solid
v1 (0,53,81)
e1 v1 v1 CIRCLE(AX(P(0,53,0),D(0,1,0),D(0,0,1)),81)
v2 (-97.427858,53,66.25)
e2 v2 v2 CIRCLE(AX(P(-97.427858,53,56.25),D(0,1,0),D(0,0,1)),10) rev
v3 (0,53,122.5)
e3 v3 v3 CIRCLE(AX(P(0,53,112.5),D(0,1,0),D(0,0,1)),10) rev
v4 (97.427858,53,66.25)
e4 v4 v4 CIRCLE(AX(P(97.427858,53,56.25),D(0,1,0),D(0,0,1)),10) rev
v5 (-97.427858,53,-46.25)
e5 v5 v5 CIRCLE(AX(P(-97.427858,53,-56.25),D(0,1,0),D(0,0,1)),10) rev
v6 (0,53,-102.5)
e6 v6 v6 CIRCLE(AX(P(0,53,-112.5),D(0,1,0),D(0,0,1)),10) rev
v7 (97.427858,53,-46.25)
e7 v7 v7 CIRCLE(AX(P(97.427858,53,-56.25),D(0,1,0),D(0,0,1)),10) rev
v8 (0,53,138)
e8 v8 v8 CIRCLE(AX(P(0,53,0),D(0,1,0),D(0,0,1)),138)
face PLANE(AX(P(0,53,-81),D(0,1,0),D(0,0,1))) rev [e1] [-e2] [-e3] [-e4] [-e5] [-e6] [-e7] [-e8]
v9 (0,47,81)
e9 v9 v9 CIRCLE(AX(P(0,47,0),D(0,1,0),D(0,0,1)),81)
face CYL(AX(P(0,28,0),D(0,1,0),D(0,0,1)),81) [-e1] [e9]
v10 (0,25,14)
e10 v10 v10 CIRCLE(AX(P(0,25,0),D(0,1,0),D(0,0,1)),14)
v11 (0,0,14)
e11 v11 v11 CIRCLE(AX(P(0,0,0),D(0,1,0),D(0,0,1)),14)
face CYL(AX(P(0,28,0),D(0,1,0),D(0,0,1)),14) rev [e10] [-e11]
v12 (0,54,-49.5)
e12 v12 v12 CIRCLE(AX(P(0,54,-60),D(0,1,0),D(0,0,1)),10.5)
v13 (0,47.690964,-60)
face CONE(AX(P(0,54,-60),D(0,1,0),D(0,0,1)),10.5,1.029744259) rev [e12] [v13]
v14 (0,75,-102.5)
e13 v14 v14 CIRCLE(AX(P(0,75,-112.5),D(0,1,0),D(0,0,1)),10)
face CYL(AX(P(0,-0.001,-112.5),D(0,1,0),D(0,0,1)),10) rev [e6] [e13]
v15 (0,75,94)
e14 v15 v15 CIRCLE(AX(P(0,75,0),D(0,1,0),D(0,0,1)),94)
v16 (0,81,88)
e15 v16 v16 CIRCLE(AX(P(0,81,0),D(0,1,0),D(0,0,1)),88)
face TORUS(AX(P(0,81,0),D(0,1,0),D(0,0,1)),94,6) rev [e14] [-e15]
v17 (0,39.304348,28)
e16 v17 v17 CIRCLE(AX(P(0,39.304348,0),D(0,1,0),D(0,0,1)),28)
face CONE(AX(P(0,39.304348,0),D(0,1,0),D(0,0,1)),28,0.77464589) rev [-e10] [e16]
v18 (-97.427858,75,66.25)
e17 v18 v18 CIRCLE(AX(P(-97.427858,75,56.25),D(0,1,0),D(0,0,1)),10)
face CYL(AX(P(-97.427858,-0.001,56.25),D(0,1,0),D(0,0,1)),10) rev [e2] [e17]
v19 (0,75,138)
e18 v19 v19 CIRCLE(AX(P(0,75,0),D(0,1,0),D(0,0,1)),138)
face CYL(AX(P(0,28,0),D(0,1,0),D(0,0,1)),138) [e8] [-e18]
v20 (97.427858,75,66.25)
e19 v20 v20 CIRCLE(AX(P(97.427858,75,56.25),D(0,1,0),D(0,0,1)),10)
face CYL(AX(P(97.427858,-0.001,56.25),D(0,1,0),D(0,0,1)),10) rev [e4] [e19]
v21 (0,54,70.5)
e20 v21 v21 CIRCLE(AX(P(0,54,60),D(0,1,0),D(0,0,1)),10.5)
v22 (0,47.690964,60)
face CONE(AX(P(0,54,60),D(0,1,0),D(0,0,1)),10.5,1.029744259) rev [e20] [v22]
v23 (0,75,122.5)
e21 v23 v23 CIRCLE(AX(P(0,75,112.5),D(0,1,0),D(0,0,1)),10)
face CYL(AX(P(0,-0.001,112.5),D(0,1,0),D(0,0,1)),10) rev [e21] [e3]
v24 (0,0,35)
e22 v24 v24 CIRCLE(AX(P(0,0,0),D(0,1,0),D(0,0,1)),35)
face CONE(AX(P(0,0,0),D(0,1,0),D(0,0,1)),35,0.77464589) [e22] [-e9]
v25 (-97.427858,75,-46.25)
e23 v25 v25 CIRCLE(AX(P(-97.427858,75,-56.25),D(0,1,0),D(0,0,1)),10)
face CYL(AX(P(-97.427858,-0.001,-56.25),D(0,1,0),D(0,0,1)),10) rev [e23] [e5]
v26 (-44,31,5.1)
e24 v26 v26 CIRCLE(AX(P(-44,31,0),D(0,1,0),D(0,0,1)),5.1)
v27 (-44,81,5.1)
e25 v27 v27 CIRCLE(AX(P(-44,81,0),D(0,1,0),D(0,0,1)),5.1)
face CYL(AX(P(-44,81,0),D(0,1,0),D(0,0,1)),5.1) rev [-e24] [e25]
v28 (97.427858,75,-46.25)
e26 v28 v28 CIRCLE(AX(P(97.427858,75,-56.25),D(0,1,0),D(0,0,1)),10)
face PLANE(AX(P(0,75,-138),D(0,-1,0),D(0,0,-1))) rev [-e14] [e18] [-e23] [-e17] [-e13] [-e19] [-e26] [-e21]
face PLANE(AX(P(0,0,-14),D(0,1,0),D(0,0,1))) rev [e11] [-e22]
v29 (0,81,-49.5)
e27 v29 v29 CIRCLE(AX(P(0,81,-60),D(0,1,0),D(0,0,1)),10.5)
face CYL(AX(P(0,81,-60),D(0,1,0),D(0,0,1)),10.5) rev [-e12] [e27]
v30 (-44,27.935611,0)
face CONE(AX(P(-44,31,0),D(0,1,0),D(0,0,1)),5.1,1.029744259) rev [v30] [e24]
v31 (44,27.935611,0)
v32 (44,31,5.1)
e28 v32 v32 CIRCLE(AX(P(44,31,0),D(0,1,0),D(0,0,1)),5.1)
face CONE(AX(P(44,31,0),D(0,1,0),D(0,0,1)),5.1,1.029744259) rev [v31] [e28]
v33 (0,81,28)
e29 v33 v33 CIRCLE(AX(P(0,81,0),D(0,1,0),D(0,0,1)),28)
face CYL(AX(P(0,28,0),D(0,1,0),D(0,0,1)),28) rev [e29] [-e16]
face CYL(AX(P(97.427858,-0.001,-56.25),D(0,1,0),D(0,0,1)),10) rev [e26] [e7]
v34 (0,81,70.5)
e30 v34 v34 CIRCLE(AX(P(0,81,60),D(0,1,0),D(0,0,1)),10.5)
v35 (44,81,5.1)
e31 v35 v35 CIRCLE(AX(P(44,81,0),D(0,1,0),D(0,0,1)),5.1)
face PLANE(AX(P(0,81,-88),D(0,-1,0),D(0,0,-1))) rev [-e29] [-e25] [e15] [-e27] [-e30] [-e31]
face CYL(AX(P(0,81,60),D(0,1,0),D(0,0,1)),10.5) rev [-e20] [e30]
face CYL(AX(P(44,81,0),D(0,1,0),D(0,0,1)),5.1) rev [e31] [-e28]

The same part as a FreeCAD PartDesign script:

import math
import FreeCAD as App
import Part
import Sketcher
Q = App.Units.Quantity

doc = App.newDocument("Part")
params = doc.addObject("Spreadsheet::Sheet", "Params")
for row, (alias, value) in enumerate([
    ("sketch1_radius", "6 mm"),
    ("sketch1_width", "6 mm"),
    ("sketch1_width2", "22 mm"),
    ("sketch1_width3", "25 mm"),
    ("sketch1_height", "21 mm"),
    ("revolution_angle", "360 deg"),
    ("sketch2_diameter", "20 mm"),
    ("sketch3_diameter", "20 mm"),
    ("sketch4_diameter", "20 mm"),
    ("sketch5_diameter", "20 mm"),
    ("sketch6_diameter", "20 mm"),
    ("sketch7_diameter", "20 mm"),
    ("sketch8_diameter", "21 mm"),
    ("hole_diameter", "21 mm"),
    ("hole_depth", "27 mm"),
    ("sketch9_diameter", "10.2 mm"),
    ("hole2_diameter", "10.2 mm"),
    ("hole2_depth", "50 mm"),
], start=1):
    params.set(f"A{row}", alias)
    params.set(f"B{row}", "=" + value)
    params.setAlias(f"B{row}", alias)

body = doc.addObject("PartDesign::Body", "Body")

# Sketch on YZ plane
sketch1 = doc.addObject("Sketcher::SketchObject", "Sketch")
body.addObject(sketch1)
sketch1.AttachmentSupport = (doc.YZ_Plane, [""])
sketch1.MapMode = "FlatFace"
sketch1.addGeometry(Part.LineSegment(App.Vector(0, -14, 0), App.Vector(0, -35, 0)), False)
sketch1.addGeometry(Part.LineSegment(App.Vector(0, -35, 0), App.Vector(47, -81, 0)), False)
sketch1.addGeometry(Part.LineSegment(App.Vector(47, -81, 0), App.Vector(53, -81, 0)), False)
sketch1.addGeometry(Part.LineSegment(App.Vector(53, -81, 0), App.Vector(53, -138, 0)), False)
sketch1.addGeometry(Part.LineSegment(App.Vector(53, -138, 0), App.Vector(75, -138, 0)), False)
sketch1.addGeometry(Part.LineSegment(App.Vector(75, -138, 0), App.Vector(75, -94, 0)), False)
sketch1.addGeometry(Part.ArcOfCircle(Part.Circle(App.Vector(81, -94, 0), App.Vector(0, 0, 1), 6), math.radians(90), math.radians(180)), False)
sketch1.addGeometry(Part.LineSegment(App.Vector(81, -88, 0), App.Vector(81, -28, 0)), False)
sketch1.addGeometry(Part.LineSegment(App.Vector(81, -28, 0), App.Vector(39, -28, 0)), False)
sketch1.addGeometry(Part.LineSegment(App.Vector(39, -28, 0), App.Vector(25, -14, 0)), False)
sketch1.addGeometry(Part.LineSegment(App.Vector(25, -14, 0), App.Vector(0, -14, 0)), False)
sketch1.addConstraint(Sketcher.Constraint("Coincident", 0, 2, 1, 1))
sketch1.addConstraint(Sketcher.Constraint("Coincident", 1, 2, 2, 1))
sketch1.addConstraint(Sketcher.Constraint("Coincident", 2, 2, 3, 1))
sketch1.addConstraint(Sketcher.Constraint("Coincident", 3, 2, 4, 1))
sketch1.addConstraint(Sketcher.Constraint("Coincident", 4, 2, 5, 1))
sketch1.addConstraint(Sketcher.Constraint("Tangent", 5, 2, 6, 2))
sketch1.addConstraint(Sketcher.Constraint("Coincident", 6, 1, 7, 1))
sketch1.addConstraint(Sketcher.Constraint("Coincident", 7, 2, 8, 1))
sketch1.addConstraint(Sketcher.Constraint("Coincident", 8, 2, 9, 1))
sketch1.addConstraint(Sketcher.Constraint("Coincident", 9, 2, 10, 1))
sketch1.addConstraint(Sketcher.Constraint("Coincident", 10, 2, 0, 1))
sketch1.addConstraint(Sketcher.Constraint("Vertical", 0))
sketch1.addConstraint(Sketcher.Constraint("Horizontal", 2))
sketch1.addConstraint(Sketcher.Constraint("Vertical", 3))
sketch1.addConstraint(Sketcher.Constraint("Horizontal", 4))
sketch1.addConstraint(Sketcher.Constraint("Vertical", 5))
sketch1.addConstraint(Sketcher.Constraint("Vertical", 7))
sketch1.addConstraint(Sketcher.Constraint("Horizontal", 8))
sketch1.addConstraint(Sketcher.Constraint("Horizontal", 10))
sketch1.addConstraint(Sketcher.Constraint("PointOnObject", 0, 2, -2))
sketch1.addConstraint(Sketcher.Constraint("Parallel", 1, 9))
sketch1.addConstraint(Sketcher.Constraint("Radius", 6, Q("6 mm")))
sketch1.addConstraint(Sketcher.Constraint("DistanceX", 2, 1, 2, 2, Q("6 mm")))
sketch1.addConstraint(Sketcher.Constraint("DistanceX", 4, 1, 4, 2, Q("22 mm")))
sketch1.addConstraint(Sketcher.Constraint("DistanceX", 10, 2, 10, 1, Q("25 mm")))
sketch1.addConstraint(Sketcher.Constraint("DistanceY", 0, 2, 0, 1, Q("21 mm")))
sketch1.addConstraint(Sketcher.Constraint("DistanceY", 3, 2, 3, 1, Q("57 mm")))
sketch1.addConstraint(Sketcher.Constraint("DistanceY", 5, 1, 5, 2, Q("44 mm")))
sketch1.addConstraint(Sketcher.Constraint("DistanceY", 7, 1, 7, 2, Q("60 mm")))
sketch1.addConstraint(Sketcher.Constraint("DistanceX", -1, 1, 6, 3, Q("81 mm")))
sketch1.addConstraint(Sketcher.Constraint("DistanceY", 6, 3, -1, 1, Q("94 mm")))
sketch1.addConstraint(Sketcher.Constraint("DistanceY", 0, 2, -1, 1, Q("35 mm")))
sketch1.addConstraint(Sketcher.Constraint("DistanceX", -1, 1, 6, 1, Q("81 mm")))
sketch1.setExpression("Constraints[21]", "Params.sketch1_radius")
sketch1.setExpression("Constraints[22]", "Params.sketch1_width")
sketch1.setExpression("Constraints[23]", "Params.sketch1_width2")
sketch1.setExpression("Constraints[24]", "Params.sketch1_width3")
sketch1.setExpression("Constraints[25]", "Params.sketch1_height")
revolution = doc.addObject("PartDesign::Revolution", "Revolution")
body.addObject(revolution)
revolution.Profile = sketch1
revolution.ReferenceAxis = (sketch1, ["H_Axis"])
revolution.setExpression("Angle", "Params.revolution_angle")

# Sketch on XZ plane
sketch2 = doc.addObject("Sketcher::SketchObject", "Sketch001")
body.addObject(sketch2)
sketch2.AttachmentSupport = (doc.XZ_Plane, [""])
sketch2.MapMode = "FlatFace"
sketch2.AttachmentOffset = App.Placement(App.Vector(0, 0, -75), App.Rotation())
sketch2.addGeometry(Part.Circle(App.Vector(0, -112, 0), App.Vector(0, 0, 1), 10), False)
sketch2.addConstraint(Sketcher.Constraint("PointOnObject", 0, 3, -2))
sketch2.addConstraint(Sketcher.Constraint("Diameter", 0, Q("20 mm")))
sketch2.addConstraint(Sketcher.Constraint("DistanceY", 0, 3, -1, 1, Q("112.5 mm")))
sketch2.setExpression("Constraints[1]", "Params.sketch2_diameter")
pocket1 = doc.addObject("PartDesign::Pocket", "Pocket")
body.addObject(pocket1)
pocket1.Profile = sketch2
pocket1.Type = "UpToFirst"
pocket1.Reversed = True

# Sketch on XZ plane
sketch3 = doc.addObject("Sketcher::SketchObject", "Sketch002")
body.addObject(sketch3)
sketch3.AttachmentSupport = (doc.XZ_Plane, [""])
sketch3.MapMode = "FlatFace"
sketch3.AttachmentOffset = App.Placement(App.Vector(0, 0, -75), App.Rotation())
sketch3.addGeometry(Part.Circle(App.Vector(97, -56, 0), App.Vector(0, 0, 1), 10), False)
sketch3.addConstraint(Sketcher.Constraint("Diameter", 0, Q("20 mm")))
sketch3.addConstraint(Sketcher.Constraint("DistanceY", 0, 3, -1, 1, Q("56.25 mm")))
sketch3.addConstraint(Sketcher.Constraint("DistanceX", -1, 1, 0, 3, Q("97.427858 mm")))
sketch3.setExpression("Constraints[0]", "Params.sketch3_diameter")
pocket2 = doc.addObject("PartDesign::Pocket", "Pocket001")
body.addObject(pocket2)
pocket2.Profile = sketch3
pocket2.Type = "UpToFirst"
pocket2.Reversed = True

# Sketch on XZ plane
sketch4 = doc.addObject("Sketcher::SketchObject", "Sketch003")
body.addObject(sketch4)
sketch4.AttachmentSupport = (doc.XZ_Plane, [""])
sketch4.MapMode = "FlatFace"
sketch4.AttachmentOffset = App.Placement(App.Vector(0, 0, -75), App.Rotation())
sketch4.addGeometry(Part.Circle(App.Vector(97, 56, 0), App.Vector(0, 0, 1), 10), False)
sketch4.addConstraint(Sketcher.Constraint("Diameter", 0, Q("20 mm")))
sketch4.addConstraint(Sketcher.Constraint("DistanceY", -1, 1, 0, 3, Q("56.25 mm")))
sketch4.addConstraint(Sketcher.Constraint("DistanceX", -1, 1, 0, 3, Q("97.427858 mm")))
sketch4.setExpression("Constraints[0]", "Params.sketch4_diameter")
pocket3 = doc.addObject("PartDesign::Pocket", "Pocket002")
body.addObject(pocket3)
pocket3.Profile = sketch4
pocket3.Type = "UpToFirst"
pocket3.Reversed = True

# Sketch on XZ plane
sketch5 = doc.addObject("Sketcher::SketchObject", "Sketch004")
body.addObject(sketch5)
sketch5.AttachmentSupport = (doc.XZ_Plane, [""])
sketch5.MapMode = "FlatFace"
sketch5.AttachmentOffset = App.Placement(App.Vector(0, 0, -75), App.Rotation())
sketch5.addGeometry(Part.Circle(App.Vector(0, 112, 0), App.Vector(0, 0, 1), 10), False)
sketch5.addConstraint(Sketcher.Constraint("PointOnObject", 0, 3, -2))
sketch5.addConstraint(Sketcher.Constraint("Diameter", 0, Q("20 mm")))
sketch5.addConstraint(Sketcher.Constraint("DistanceY", -1, 1, 0, 3, Q("112.5 mm")))
sketch5.setExpression("Constraints[1]", "Params.sketch5_diameter")
pocket4 = doc.addObject("PartDesign::Pocket", "Pocket003")
body.addObject(pocket4)
pocket4.Profile = sketch5
pocket4.Type = "UpToFirst"
pocket4.Reversed = True

# Sketch on XZ plane
sketch6 = doc.addObject("Sketcher::SketchObject", "Sketch005")
body.addObject(sketch6)
sketch6.AttachmentSupport = (doc.XZ_Plane, [""])
sketch6.MapMode = "FlatFace"
sketch6.AttachmentOffset = App.Placement(App.Vector(0, 0, -75), App.Rotation())
sketch6.addGeometry(Part.Circle(App.Vector(-97, 56, 0), App.Vector(0, 0, 1), 10), False)
sketch6.addConstraint(Sketcher.Constraint("Diameter", 0, Q("20 mm")))
sketch6.addConstraint(Sketcher.Constraint("DistanceY", -1, 1, 0, 3, Q("56.25 mm")))
sketch6.addConstraint(Sketcher.Constraint("DistanceX", 0, 3, -1, 1, Q("97.427858 mm")))
sketch6.setExpression("Constraints[0]", "Params.sketch6_diameter")
pocket5 = doc.addObject("PartDesign::Pocket", "Pocket004")
body.addObject(pocket5)
pocket5.Profile = sketch6
pocket5.Type = "UpToFirst"
pocket5.Reversed = True

# Sketch on XZ plane
sketch7 = doc.addObject("Sketcher::SketchObject", "Sketch006")
body.addObject(sketch7)
sketch7.AttachmentSupport = (doc.XZ_Plane, [""])
sketch7.MapMode = "FlatFace"
sketch7.AttachmentOffset = App.Placement(App.Vector(0, 0, -75), App.Rotation())
sketch7.addGeometry(Part.Circle(App.Vector(-97, -56, 0), App.Vector(0, 0, 1), 10), False)
sketch7.addConstraint(Sketcher.Constraint("Diameter", 0, Q("20 mm")))
sketch7.addConstraint(Sketcher.Constraint("DistanceY", 0, 3, -1, 1, Q("56.25 mm")))
sketch7.addConstraint(Sketcher.Constraint("DistanceX", 0, 3, -1, 1, Q("97.427858 mm")))
sketch7.setExpression("Constraints[0]", "Params.sketch7_diameter")
pocket6 = doc.addObject("PartDesign::Pocket", "Pocket005")
body.addObject(pocket6)
pocket6.Profile = sketch7
pocket6.Type = "UpToFirst"
pocket6.Reversed = True

# Sketch on XZ plane
sketch8 = doc.addObject("Sketcher::SketchObject", "Sketch007")
body.addObject(sketch8)
sketch8.AttachmentSupport = (doc.XZ_Plane, [""])
sketch8.MapMode = "FlatFace"
sketch8.AttachmentOffset = App.Placement(App.Vector(0, 0, -81), App.Rotation())
sketch8.addGeometry(Part.Circle(App.Vector(0, -60, 0), App.Vector(0, 0, 1), 10), False)
sketch8.addGeometry(Part.Circle(App.Vector(0, 60, 0), App.Vector(0, 0, 1), 10), False)
sketch8.addConstraint(Sketcher.Constraint("Equal", 0, 1))
sketch8.addConstraint(Sketcher.Constraint("Symmetric", 0, 3, 1, 3, -1, 1))
sketch8.addConstraint(Sketcher.Constraint("PointOnObject", 0, 3, -2))
sketch8.addConstraint(Sketcher.Constraint("Diameter", 0, Q("21 mm")))
sketch8.addConstraint(Sketcher.Constraint("DistanceY", 0, 3, -1, 1, Q("60 mm")))
sketch8.setExpression("Constraints[3]", "Params.sketch8_diameter")
doc.recompute()
hole = doc.addObject("PartDesign::Hole", "Hole")
body.addObject(hole)
hole.Profile = sketch8
hole.ThreadType = "None"
hole.setExpression("Diameter", "Params.hole_diameter")
hole.DepthType = "Dimension"
hole.setExpression("Depth", "Params.hole_depth")
hole.DrillPoint = "Angled"
hole.DrillPointAngle = 118
hole.Reversed = True

# Sketch on XZ plane
sketch9 = doc.addObject("Sketcher::SketchObject", "Sketch008")
body.addObject(sketch9)
sketch9.AttachmentSupport = (doc.XZ_Plane, [""])
sketch9.MapMode = "FlatFace"
sketch9.AttachmentOffset = App.Placement(App.Vector(0, 0, -81), App.Rotation())
sketch9.addGeometry(Part.Circle(App.Vector(44, 0, 0), App.Vector(0, 0, 1), 5), False)
sketch9.addGeometry(Part.Circle(App.Vector(-44, 0, 0), App.Vector(0, 0, 1), 5), False)
sketch9.addConstraint(Sketcher.Constraint("Equal", 0, 1))
sketch9.addConstraint(Sketcher.Constraint("Symmetric", 0, 3, 1, 3, -1, 1))
sketch9.addConstraint(Sketcher.Constraint("PointOnObject", 0, 3, -1))
sketch9.addConstraint(Sketcher.Constraint("Diameter", 0, Q("10.2 mm")))
sketch9.addConstraint(Sketcher.Constraint("DistanceX", -1, 1, 0, 3, Q("44 mm")))
sketch9.setExpression("Constraints[3]", "Params.sketch9_diameter")
doc.recompute()
hole2 = doc.addObject("PartDesign::Hole", "Hole001")
body.addObject(hole2)
hole2.Profile = sketch9
hole2.ThreadType = "None"
hole2.setExpression("Diameter", "Params.hole2_diameter")
hole2.DepthType = "Dimension"
hole2.setExpression("Depth", "Params.hole2_depth")
hole2.DrillPoint = "Angled"
hole2.DrillPointAngle = 118
hole2.Reversed = True

doc.recompute()
